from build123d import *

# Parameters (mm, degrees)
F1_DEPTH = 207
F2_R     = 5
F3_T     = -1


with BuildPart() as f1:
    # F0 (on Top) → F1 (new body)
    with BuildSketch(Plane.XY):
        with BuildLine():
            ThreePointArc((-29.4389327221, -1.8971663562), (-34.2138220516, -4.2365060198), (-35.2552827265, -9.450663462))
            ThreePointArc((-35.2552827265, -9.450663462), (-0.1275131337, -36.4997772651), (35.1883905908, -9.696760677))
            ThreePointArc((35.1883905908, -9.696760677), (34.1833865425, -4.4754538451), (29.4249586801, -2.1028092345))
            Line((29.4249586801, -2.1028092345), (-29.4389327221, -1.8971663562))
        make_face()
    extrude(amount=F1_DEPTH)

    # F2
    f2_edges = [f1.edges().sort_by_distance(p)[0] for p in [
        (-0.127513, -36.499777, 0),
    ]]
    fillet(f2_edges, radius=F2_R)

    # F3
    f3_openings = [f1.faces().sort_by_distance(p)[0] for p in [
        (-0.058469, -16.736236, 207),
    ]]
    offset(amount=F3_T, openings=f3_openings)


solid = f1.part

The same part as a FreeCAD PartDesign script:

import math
import FreeCAD as App
import Part
import Sketcher
Q = App.Units.Quantity


def edges_at(feature, points):
    """Names of the edges that pass closest to the given points."""
    edges = feature.Shape.Edges
    near = lambda p: min(range(len(edges)), key=lambda i: edges[i].distToShape(Part.Vertex(*p))[0])
    return sorted({f"Edge{near(p) + 1}" for p in points})


def faces_at(feature, points):
    """Names of the faces that lie closest to the given points."""
    faces = feature.Shape.Faces
    near = lambda p: min(range(len(faces)), key=lambda i: faces[i].distToShape(Part.Vertex(*p))[0])
    return sorted({f"Face{near(p) + 1}" for p in points})

doc = App.newDocument("Part")
params = doc.addObject("Spreadsheet::Sheet", "Params")
for row, (alias, value) in enumerate([
    ("sketch1_radius", "6 mm"),
    ("sketch1_radius2", "36.5 mm"),
    ("pad1_length", "207 mm"),
    ("fillet_radius", "5 mm"),
    ("thickness_wall", "1 mm"),
], start=1):
    params.set(f"A{row}", alias)
    params.set(f"B{row}", "=" + value)
    params.setAlias(f"B{row}", alias)

body = doc.addObject("PartDesign::Body", "Body")

# Sketch on XY plane
sketch1 = body.newObject("Sketcher::SketchObject", "Sketch")
sketch1.AttachmentSupport = (doc.getObject("XY_Plane"), [""])
sketch1.MapMode = "FlatFace"
sketch1.addGeometry(Part.ArcOfCircle(Part.Circle(App.Vector(-29, -8, 0), App.Vector(0, 0, 1), 6), math.radians(90), math.radians(195)), False)
sketch1.addGeometry(Part.ArcOfCircle(Part.Circle(App.Vector(0, 0, 0), App.Vector(0, 0, 1), 36), math.radians(-165), math.radians(-15)), False)
sketch1.addGeometry(Part.ArcOfCircle(Part.Circle(App.Vector(29, -8, 0), App.Vector(0, 0, 1), 6), math.radians(-15), math.radians(90)), False)
sketch1.addGeometry(Part.LineSegment(App.Vector(29, -2, 0), App.Vector(-29, -2, 0)), False)
sketch1.addConstraint(Sketcher.Constraint("Tangent", 0, 2, 1, 1))
sketch1.addConstraint(Sketcher.Constraint("Tangent", 1, 2, 2, 1))
sketch1.addConstraint(Sketcher.Constraint("Tangent", 2, 2, 3, 1))
sketch1.addConstraint(Sketcher.Constraint("Tangent", 3, 2, 0, 1))
sketch1.addConstraint(Sketcher.Constraint("Coincident", 1, 3, -1, 1))
sketch1.addConstraint(Sketcher.Constraint("Equal", 0, 2))
sketch1.addConstraint(Sketcher.Constraint("Radius", 0, Q("6 mm")))
sketch1.addConstraint(Sketcher.Constraint("Radius", 1, Q("36.5 mm")))
sketch1.addConstraint(Sketcher.Constraint("Distance", 3, Q("58.864251 mm")))
sketch1.addConstraint(Sketcher.Constraint("DistanceY", 0, 3, -1, 1, Q("7.89713 mm")))
sketch1.setExpression("Constraints[6]", "Params.sketch1_radius")
sketch1.setExpression("Constraints[7]", "Params.sketch1_radius2")
pad1 = body.newObject("PartDesign::Pad", "Pad")
pad1.Profile = sketch1
pad1.setExpression("Length", "Params.pad1_length")
doc.recompute()

fillet = body.newObject("PartDesign::Fillet", "Fillet")
fillet.Base = (pad1, edges_at(pad1, [(-0.128, -36.5, 0)]))
fillet.setExpression("Radius", "Params.fillet_radius")
doc.recompute()

thickness = body.newObject("PartDesign::Thickness", "Thickness")
thickness.Base = (fillet, faces_at(fillet, [(-0.028, -19.199, 207)]))
thickness.setExpression("Value", "Params.thickness_wall")
thickness.Reversed = True
thickness.Join = "Arc"

doc.recompute()
